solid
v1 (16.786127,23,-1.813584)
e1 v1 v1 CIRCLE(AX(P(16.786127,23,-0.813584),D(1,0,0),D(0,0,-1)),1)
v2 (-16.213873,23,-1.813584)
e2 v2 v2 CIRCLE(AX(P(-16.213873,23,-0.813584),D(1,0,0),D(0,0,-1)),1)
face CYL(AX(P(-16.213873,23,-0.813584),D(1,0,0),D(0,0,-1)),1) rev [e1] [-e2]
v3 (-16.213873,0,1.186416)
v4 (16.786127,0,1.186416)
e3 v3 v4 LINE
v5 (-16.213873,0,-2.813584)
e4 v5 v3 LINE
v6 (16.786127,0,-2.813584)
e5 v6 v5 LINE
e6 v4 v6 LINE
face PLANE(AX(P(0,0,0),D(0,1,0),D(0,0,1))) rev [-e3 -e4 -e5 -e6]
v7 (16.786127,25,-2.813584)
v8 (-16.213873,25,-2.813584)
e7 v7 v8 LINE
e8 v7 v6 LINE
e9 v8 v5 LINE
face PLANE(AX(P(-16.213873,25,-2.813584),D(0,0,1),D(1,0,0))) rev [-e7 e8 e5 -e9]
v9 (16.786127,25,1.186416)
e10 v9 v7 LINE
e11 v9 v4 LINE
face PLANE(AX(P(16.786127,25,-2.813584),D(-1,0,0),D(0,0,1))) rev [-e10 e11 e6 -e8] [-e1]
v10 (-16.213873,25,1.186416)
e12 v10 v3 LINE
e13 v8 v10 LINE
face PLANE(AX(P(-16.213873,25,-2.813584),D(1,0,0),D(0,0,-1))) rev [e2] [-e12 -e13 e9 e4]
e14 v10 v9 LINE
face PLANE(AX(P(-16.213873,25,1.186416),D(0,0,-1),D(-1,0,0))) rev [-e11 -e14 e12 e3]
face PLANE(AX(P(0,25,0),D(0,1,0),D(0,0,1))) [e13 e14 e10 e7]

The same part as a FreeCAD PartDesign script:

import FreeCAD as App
import Part
import Sketcher

V = App.Vector

doc = App.newDocument("Part")
params = doc.addObject("Spreadsheet::Sheet", "Params")
for row, (alias, value) in enumerate([
    ("sketch1_width", "33 mm"),
    ("sketch1_height", "4 mm"),
    ("pad1_length", "25 mm"),
    ("sketch2_diameter", "2 mm"),
], start=1):
    params.set(f"A{row}", alias)
    params.set(f"B{row}", "=" + value)
    params.setAlias(f"B{row}", alias)

body = doc.addObject("PartDesign::Body", "Body")

sketch1 = doc.addObject("Sketcher::SketchObject", "Sketch")
body.addObject(sketch1)
sketch1.AttachmentSupport = (doc.XZ_Plane, [""])
sketch1.MapMode = "FlatFace"
sketch1.addGeometry([
    Part.LineSegment(V(-16.2, -2.8, 0), V(-16.2, 1.2, 0)),
    Part.LineSegment(V(-16.2, 1.2, 0), V(16.8, 1.2, 0)),
    Part.LineSegment(V(16.8, 1.2, 0), V(16.8, -2.8, 0)),
    Part.LineSegment(V(16.8, -2.8, 0), V(-16.2, -2.8, 0)),
], False)
sketch1.addConstraint([
    Sketcher.Constraint("Coincident", 0, 2, 1, 1),
    Sketcher.Constraint("Coincident", 1, 2, 2, 1),
    Sketcher.Constraint("Coincident", 2, 2, 3, 1),
    Sketcher.Constraint("Coincident", 3, 2, 0, 1),
    Sketcher.Constraint("Vertical", 0),
    Sketcher.Constraint("Horizontal", 1),
    Sketcher.Constraint("Vertical", 2),
    Sketcher.Constraint("Horizontal", 3),
    Sketcher.Constraint("DistanceX", 1, 1, 1, 2, 33.0),
    Sketcher.Constraint("DistanceY", 0, 1, 0, 2, 4.0),
    Sketcher.Constraint("DistanceX", 0, 2, -1, 1, 16.213873),
    Sketcher.Constraint("DistanceY", -1, 1, 0, 2, 1.186416),
])
sketch1.setExpression("Constraints[8]", "Params.sketch1_width")
sketch1.setExpression("Constraints[9]", "Params.sketch1_height")
pad1 = doc.addObject("PartDesign::Pad", "Pad")
body.addObject(pad1)
pad1.Profile = sketch1
pad1.setExpression("Length", "Params.pad1_length")
pad1.Reversed = True

sketch2 = doc.addObject("Sketcher::SketchObject", "Sketch001")
body.addObject(sketch2)
sketch2.AttachmentSupport = (doc.YZ_Plane, [""])
sketch2.MapMode = "FlatFace"
sketch2.AttachmentOffset = App.Placement(V(0, 0, 16.786127), App.Rotation())
sketch2.addGeometry(Part.Circle(V(23, -0.8, 0), V(0, 0, 1), 1), False)
sketch2.addConstraint([
    Sketcher.Constraint("Diameter", 0, 2.0),
    Sketcher.Constraint("DistanceX", -1, 1, 0, 3, 23.0),
    Sketcher.Constraint("DistanceY", 0, 3, -1, 1, 0.813584),
])
sketch2.setExpression("Constraints[0]", "Params.sketch2_diameter")
pocket1 = doc.addObject("PartDesign::Pocket", "Pocket")
body.addObject(pocket1)
pocket1.Profile = sketch2
pocket1.Type = "ThroughAll"

doc.recompute()
